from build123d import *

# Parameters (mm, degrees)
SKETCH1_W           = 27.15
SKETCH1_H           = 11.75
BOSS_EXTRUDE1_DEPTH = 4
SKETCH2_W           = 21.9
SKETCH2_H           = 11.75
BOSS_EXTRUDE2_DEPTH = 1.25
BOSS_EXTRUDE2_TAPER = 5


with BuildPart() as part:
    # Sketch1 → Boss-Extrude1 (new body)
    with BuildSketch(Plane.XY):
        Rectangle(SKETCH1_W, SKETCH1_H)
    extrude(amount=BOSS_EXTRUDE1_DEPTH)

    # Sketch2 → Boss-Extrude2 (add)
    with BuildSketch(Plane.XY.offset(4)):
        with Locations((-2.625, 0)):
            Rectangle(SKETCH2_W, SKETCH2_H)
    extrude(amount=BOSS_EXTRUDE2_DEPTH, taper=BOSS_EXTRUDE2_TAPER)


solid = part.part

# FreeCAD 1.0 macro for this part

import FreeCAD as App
import Part
import Sketcher
Q = App.Units.Quantity


def add_polygon(sketch, points):
    """Adds a closed chain of lines whose ends are joined by coincident constraints."""
    first, n = sketch.GeometryCount, len(points)
    for a, b in zip(points, points[1:] + points[:1]):
        sketch.addGeometry(Part.LineSegment(App.Vector(*a, 0), App.Vector(*b, 0)), False)
    for i in range(n):
        sketch.addConstraint(Sketcher.Constraint("Coincident", first + i, 2, first + (i + 1) % n, 1))

doc = App.newDocument("Part")
params = doc.addObject("Spreadsheet::Sheet", "Params")
for row, (alias, value) in enumerate([
    ("sketch1_width", "27.15 mm"),
    ("sketch1_height", "11.75 mm"),
    ("pad1_length", "4 mm"),
    ("sketch2_width", "21.9 mm"),
    ("sketch2_height", "11.75 mm"),
    ("pad2_length", "1.25 mm"),
    ("pad2_taper", "-5 deg"),
], start=1):
    params.set(f"A{row}", alias)
    params.set(f"B{row}", "=" + value)
    params.setAlias(f"B{row}", alias)

body = doc.addObject("PartDesign::Body", "Body")

# Sketch on XY plane
sketch1 = doc.addObject("Sketcher::SketchObject", "Sketch")
body.addObject(sketch1)
sketch1.AttachmentSupport = (doc.XY_Plane, [""])
sketch1.MapMode = "FlatFace"
add_polygon(sketch1, [(-13.575, 5.875), (-13.575, -5.875), (13.575, -5.875), (13.575, 5.875)])  # lines 0-3
sketch1.addConstraint([
    Sketcher.Constraint("Vertical", 0),
    Sketcher.Constraint("Horizontal", 1),
    Sketcher.Constraint("Vertical", 2),
    Sketcher.Constraint("Horizontal", 3),
    Sketcher.Constraint("Symmetric", 0, 2, 2, 2, -1, 1),
    Sketcher.Constraint("DistanceX", 1, 1, 1, 2, Q("27.15 mm")),
    Sketcher.Constraint("DistanceY", 0, 2, 0, 1, Q("11.75 mm")),
])
sketch1.setExpression("Constraints[9]", "Params.sketch1_width")
sketch1.setExpression("Constraints[10]", "Params.sketch1_height")
pad1 = doc.addObject("PartDesign::Pad", "Pad")
body.addObject(pad1)
pad1.Profile = sketch1
pad1.setExpression("Length", "Params.pad1_length")

# Sketch on XY plane
sketch2 = doc.addObject("Sketcher::SketchObject", "Sketch001")
body.addObject(sketch2)
sketch2.AttachmentSupport = (doc.XY_Plane, [""])
sketch2.MapMode = "FlatFace"
sketch2.AttachmentOffset = App.Placement(App.Vector(0, 0, 4), App.Rotation())
add_polygon(sketch2, [(-13.575, 5.875), (-13.575, -5.875), (8.325, -5.875), (8.325, 5.875)])  # lines 0-3
sketch2.addConstraint([
    Sketcher.Constraint("Vertical", 0),
    Sketcher.Constraint("Horizontal", 1),
    Sketcher.Constraint("Vertical", 2),
    Sketcher.Constraint("Horizontal", 3),
    Sketcher.Constraint("DistanceX", 1, 1, 1, 2, Q("21.9 mm")),
    Sketcher.Constraint("DistanceY", 0, 2, 0, 1, Q("11.75 mm")),
    Sketcher.Constraint("DistanceX", 0, 2, -1, 1, Q("13.575 mm")),
    Sketcher.Constraint("DistanceY", 0, 2, -1, 1, Q("5.875 mm")),
])
sketch2.setExpression("Constraints[8]", "Params.sketch2_width")
sketch2.setExpression("Constraints[9]", "Params.sketch2_height")
pad2 = doc.addObject("PartDesign::Pad", "Pad001")
body.addObject(pad2)
pad2.Profile = sketch2
pad2.setExpression("Length", "Params.pad2_length")
pad2.setExpression("TaperAngle", "Params.pad2_taper")

doc.recompute()
